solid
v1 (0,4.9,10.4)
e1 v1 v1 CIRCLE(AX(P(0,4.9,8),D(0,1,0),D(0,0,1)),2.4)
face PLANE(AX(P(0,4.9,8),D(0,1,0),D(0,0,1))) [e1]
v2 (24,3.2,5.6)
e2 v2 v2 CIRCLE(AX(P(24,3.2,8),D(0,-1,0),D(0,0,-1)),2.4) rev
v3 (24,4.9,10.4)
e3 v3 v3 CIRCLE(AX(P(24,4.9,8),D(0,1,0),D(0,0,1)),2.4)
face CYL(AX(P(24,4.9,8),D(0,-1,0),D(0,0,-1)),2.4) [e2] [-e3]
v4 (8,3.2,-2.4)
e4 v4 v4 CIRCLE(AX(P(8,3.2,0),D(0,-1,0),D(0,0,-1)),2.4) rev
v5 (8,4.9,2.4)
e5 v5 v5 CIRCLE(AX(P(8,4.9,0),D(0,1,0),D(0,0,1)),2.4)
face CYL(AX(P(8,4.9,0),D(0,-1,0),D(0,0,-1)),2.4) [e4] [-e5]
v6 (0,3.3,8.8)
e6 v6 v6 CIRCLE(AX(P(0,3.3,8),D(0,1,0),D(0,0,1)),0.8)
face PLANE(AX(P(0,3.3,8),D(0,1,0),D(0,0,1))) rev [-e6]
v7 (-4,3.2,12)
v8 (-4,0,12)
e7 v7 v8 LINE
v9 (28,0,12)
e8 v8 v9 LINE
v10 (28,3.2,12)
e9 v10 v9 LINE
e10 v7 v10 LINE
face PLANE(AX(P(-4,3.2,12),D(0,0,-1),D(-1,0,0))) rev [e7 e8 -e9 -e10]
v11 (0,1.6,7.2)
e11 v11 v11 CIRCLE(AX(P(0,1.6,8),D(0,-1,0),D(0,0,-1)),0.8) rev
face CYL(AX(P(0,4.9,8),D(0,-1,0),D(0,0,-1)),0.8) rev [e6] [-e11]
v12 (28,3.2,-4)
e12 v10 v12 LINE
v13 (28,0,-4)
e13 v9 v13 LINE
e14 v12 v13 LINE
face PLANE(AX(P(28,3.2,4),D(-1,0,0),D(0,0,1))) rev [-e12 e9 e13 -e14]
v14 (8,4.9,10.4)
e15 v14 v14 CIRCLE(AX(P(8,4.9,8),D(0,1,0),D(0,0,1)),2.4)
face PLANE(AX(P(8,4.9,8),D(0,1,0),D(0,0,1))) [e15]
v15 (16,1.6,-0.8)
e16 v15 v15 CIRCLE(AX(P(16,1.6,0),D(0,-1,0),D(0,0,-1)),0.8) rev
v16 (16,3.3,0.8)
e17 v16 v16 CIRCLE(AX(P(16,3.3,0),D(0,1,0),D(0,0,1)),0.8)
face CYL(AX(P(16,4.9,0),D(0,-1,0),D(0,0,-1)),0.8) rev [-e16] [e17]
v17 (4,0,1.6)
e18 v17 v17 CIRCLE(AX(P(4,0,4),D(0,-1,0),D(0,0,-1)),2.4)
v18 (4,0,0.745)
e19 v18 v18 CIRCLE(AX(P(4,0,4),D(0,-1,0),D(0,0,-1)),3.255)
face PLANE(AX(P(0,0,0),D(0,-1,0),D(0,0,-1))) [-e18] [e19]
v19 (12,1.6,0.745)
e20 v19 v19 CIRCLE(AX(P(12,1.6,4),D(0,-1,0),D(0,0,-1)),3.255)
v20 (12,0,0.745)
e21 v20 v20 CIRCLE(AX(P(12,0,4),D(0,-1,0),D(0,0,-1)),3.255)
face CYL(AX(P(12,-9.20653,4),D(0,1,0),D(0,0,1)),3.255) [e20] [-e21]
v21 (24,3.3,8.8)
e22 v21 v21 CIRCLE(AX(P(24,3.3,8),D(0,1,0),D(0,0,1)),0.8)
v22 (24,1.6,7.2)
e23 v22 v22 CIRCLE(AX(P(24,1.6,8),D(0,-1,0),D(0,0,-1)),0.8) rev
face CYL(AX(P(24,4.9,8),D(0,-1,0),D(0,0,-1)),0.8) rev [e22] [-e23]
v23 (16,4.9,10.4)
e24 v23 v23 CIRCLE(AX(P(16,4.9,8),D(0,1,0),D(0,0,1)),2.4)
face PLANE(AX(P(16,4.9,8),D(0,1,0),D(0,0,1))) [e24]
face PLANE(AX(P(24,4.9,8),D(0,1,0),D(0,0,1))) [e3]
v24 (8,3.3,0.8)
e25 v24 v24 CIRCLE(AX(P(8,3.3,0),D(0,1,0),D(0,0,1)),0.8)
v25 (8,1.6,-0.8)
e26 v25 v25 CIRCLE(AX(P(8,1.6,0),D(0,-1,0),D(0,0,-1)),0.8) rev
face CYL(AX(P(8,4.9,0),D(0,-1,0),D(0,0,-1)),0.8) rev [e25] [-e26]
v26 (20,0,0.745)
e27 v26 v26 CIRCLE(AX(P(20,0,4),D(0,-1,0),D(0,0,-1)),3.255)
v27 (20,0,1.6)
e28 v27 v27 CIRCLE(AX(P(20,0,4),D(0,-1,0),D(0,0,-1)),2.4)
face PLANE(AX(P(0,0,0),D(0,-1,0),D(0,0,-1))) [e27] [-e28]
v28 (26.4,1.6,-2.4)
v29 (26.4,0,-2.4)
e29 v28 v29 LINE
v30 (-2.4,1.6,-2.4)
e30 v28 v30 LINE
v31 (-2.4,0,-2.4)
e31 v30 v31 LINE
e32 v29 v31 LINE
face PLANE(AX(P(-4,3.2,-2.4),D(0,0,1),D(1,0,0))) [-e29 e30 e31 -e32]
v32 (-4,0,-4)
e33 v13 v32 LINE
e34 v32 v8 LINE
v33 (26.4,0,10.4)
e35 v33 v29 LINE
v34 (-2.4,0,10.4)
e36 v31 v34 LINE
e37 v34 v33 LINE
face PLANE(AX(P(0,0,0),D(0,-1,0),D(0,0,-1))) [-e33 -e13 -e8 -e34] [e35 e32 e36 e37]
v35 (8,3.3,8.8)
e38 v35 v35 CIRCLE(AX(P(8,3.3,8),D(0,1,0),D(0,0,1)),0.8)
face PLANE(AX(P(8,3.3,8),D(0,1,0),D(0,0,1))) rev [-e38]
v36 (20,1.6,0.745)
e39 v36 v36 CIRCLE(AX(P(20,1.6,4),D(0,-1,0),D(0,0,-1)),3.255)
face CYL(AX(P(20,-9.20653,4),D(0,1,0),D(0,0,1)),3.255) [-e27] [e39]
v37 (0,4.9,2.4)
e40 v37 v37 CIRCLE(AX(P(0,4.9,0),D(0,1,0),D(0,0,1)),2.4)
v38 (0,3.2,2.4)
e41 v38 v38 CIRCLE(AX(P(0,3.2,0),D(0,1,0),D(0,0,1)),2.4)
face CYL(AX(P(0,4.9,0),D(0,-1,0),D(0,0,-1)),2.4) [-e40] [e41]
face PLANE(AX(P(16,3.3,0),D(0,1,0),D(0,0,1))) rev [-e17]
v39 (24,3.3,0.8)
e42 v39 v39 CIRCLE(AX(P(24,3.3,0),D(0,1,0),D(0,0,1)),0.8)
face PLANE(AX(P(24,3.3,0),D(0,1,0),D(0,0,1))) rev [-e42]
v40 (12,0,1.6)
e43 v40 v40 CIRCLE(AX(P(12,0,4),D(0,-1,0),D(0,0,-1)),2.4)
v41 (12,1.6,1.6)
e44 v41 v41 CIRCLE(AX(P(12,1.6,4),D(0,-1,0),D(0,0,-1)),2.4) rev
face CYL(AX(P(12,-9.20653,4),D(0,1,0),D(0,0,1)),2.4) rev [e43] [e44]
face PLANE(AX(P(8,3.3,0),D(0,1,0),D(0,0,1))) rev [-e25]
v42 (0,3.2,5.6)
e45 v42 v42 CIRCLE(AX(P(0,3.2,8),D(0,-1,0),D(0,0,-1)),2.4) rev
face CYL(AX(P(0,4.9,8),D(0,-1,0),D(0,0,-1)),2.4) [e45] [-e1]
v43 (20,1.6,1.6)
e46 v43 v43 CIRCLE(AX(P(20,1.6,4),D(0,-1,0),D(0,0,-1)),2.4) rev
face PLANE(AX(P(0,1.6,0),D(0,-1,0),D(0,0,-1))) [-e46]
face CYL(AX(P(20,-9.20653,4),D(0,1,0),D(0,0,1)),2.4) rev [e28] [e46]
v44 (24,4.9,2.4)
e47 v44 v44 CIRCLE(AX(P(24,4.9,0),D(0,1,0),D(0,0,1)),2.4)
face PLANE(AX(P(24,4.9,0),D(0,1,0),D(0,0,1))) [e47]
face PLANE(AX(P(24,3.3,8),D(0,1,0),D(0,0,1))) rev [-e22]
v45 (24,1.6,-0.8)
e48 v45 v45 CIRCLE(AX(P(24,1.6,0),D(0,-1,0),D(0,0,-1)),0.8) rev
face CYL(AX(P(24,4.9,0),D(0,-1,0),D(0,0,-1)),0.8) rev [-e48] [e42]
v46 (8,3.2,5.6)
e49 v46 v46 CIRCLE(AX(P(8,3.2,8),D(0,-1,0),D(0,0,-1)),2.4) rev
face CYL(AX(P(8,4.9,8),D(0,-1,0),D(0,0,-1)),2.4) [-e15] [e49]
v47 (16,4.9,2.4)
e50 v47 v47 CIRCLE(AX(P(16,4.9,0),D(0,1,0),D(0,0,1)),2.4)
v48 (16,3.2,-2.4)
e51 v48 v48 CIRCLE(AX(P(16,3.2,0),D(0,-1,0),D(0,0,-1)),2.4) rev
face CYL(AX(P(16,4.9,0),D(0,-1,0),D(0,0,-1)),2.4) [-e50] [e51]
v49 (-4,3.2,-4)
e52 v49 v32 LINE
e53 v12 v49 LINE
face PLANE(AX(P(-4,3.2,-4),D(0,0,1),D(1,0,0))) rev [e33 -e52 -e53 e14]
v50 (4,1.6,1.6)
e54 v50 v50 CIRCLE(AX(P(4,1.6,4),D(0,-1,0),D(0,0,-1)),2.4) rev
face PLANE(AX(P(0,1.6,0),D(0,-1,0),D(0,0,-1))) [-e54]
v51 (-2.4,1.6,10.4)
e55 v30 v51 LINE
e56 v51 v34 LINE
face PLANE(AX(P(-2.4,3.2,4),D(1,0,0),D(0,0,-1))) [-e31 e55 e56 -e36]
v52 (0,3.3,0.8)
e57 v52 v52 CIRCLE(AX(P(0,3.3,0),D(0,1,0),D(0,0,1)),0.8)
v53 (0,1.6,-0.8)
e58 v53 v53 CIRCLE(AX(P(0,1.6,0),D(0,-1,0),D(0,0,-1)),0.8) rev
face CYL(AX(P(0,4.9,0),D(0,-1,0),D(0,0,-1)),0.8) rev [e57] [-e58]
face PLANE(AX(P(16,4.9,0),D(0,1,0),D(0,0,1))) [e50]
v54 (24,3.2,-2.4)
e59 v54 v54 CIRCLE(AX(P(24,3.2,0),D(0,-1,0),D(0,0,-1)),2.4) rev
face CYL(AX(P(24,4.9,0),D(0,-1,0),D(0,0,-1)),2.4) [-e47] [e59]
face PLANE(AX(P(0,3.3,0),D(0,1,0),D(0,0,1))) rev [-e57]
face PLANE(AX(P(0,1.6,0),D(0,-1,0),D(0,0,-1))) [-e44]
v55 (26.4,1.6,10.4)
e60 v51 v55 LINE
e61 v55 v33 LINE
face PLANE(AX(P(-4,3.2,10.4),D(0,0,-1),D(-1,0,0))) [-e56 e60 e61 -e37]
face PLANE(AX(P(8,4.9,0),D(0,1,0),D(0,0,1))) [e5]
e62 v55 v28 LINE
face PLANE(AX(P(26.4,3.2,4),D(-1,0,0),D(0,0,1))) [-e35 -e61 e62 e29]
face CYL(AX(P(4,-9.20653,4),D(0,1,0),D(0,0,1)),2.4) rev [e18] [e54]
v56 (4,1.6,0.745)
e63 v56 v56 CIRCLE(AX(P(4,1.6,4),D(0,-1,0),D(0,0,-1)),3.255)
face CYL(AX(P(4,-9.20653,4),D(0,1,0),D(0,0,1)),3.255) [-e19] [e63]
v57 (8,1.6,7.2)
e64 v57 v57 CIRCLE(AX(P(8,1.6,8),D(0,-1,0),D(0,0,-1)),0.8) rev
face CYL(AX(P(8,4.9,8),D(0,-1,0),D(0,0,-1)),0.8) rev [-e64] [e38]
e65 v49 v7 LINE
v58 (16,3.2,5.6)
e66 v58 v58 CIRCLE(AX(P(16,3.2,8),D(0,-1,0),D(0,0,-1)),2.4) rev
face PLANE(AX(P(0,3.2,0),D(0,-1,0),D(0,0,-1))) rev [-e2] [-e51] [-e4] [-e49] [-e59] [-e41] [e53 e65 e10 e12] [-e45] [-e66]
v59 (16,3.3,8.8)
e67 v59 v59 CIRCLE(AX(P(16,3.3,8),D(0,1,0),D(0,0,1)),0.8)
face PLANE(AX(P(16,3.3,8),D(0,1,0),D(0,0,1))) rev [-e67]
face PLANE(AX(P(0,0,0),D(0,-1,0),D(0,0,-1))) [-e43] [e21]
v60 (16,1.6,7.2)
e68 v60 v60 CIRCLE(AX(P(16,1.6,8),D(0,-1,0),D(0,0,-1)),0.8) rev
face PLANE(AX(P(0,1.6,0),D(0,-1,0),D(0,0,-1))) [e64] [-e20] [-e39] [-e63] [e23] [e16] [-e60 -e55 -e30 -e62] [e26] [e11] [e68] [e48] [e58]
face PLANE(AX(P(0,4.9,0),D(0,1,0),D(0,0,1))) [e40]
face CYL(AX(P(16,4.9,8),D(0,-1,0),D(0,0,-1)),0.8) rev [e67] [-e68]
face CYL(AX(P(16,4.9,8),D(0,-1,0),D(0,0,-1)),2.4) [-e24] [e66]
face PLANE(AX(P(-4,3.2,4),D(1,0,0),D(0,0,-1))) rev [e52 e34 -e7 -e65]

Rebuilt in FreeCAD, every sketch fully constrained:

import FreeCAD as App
import Part
import Sketcher

V = App.Vector
Q = App.Units.Quantity


def faces_at(feature, points):
    """Names of the faces that lie closest to the given points."""
    faces = feature.Shape.Faces
    near = lambda p: min(range(len(faces)), key=lambda i: faces[i].distToShape(Part.Vertex(*p))[0])
    return sorted({f"Face{near(p) + 1}" for p in points})


def add_polygon(sketch, points):
    """Adds a closed chain of lines whose ends are joined by coincident constraints."""
    first, n = sketch.GeometryCount, len(points)
    for a, b in zip(points, points[1:] + points[:1]):
        sketch.addGeometry(Part.LineSegment(App.Vector(*a, 0), App.Vector(*b, 0)), False)
    for i in range(n):
        sketch.addConstraint(Sketcher.Constraint("Coincident", first + i, 2, first + (i + 1) % n, 1))

doc = App.newDocument("Part")
params = doc.addObject("Spreadsheet::Sheet", "Params")
for row, (alias, value) in enumerate([
    ("sketch1_width", "8 mm"),
    ("pad1_length", "3.2 mm"),
    ("sketch2_diameter", "4.8 mm"),
    ("pad2_length", "1.7 mm"),
    ("linearpattern_pitch", "8 mm"),
    ("linearpattern2_pitch", "8 mm"),
    ("sketch3_width", "8 mm"),
    ("pad3_length", "3.2 mm"),
    ("sketch4_width", "8 mm"),
    ("pad4_length", "3.2 mm"),
    ("sketch5_width", "8 mm"),
    ("pad5_length", "3.2 mm"),
    ("sketch6_diameter", "4.8 mm"),
    ("pad6_length", "1.7 mm"),
    ("sketch7_diameter", "4.8 mm"),
    ("pad7_length", "1.7 mm"),
    ("sketch8_diameter", "4.8 mm"),
    ("pad8_length", "1.7 mm"),
    ("thickness_wall", "1.6 mm"),
    ("sketch9_diameter", "4.8 mm"),
    ("sketch9_diameter2", "6.51 mm"),
    ("pad9_length", "1.6 mm"),
    ("linearpattern3_pitch", "8 mm"),
], start=1):
    params.set(f"A{row}", alias)
    params.set(f"B{row}", "=" + value)
    params.setAlias(f"B{row}", alias)

body = doc.addObject("PartDesign::Body", "Body")

sketch1 = doc.addObject("Sketcher::SketchObject", "Sketch")
body.addObject(sketch1)
sketch1.AttachmentSupport = (doc.XZ_Plane, [""])
sketch1.MapMode = "FlatFace"
add_polygon(sketch1, [(-4, -4), (-4, 4), (4, 4), (4, -4)])
sketch1.addConstraint([
    Sketcher.Constraint("Vertical", 0),
    Sketcher.Constraint("Horizontal", 1),
    Sketcher.Constraint("Vertical", 2),
    Sketcher.Constraint("Horizontal", 3),
    Sketcher.Constraint("Symmetric", 0, 2, 2, 2, -1, 1),
    Sketcher.Constraint("Equal", 3, 0),
    Sketcher.Constraint("DistanceX", 1, 1, 1, 2, Q("8 mm")),
])
sketch1.setExpression("Constraints[10]", "Params.sketch1_width")
pad1 = doc.addObject("PartDesign::Pad", "Pad")
body.addObject(pad1)
pad1.Profile = sketch1
pad1.setExpression("Length", "Params.pad1_length")
pad1.Reversed = True

sketch2 = doc.addObject("Sketcher::SketchObject", "Sketch001")
body.addObject(sketch2)
sketch2.AttachmentSupport = (doc.XZ_Plane, [""])
sketch2.MapMode = "FlatFace"
sketch2.AttachmentOffset = App.Placement(V(0, 0, -3.2), App.Rotation())
sketch2.addGeometry(Part.Circle(V(0, 0, 0), V(0, 0, 1), 2.4), False)
sketch2.addConstraint([
    Sketcher.Constraint("Coincident", 0, 3, -1, 1),
    Sketcher.Constraint("Diameter", 0, Q("4.8 mm")),
])
sketch2.setExpression("Constraints[1]", "Params.sketch2_diameter")
pad2 = doc.addObject("PartDesign::Pad", "Pad001")
body.addObject(pad2)
pad2.Profile = sketch2
pad2.setExpression("Length", "Params.pad2_length")
pad2.Reversed = True
doc.recompute()

linearpattern = doc.addObject("PartDesign::LinearPattern", "LinearPattern")
body.addObject(linearpattern)
linearpattern.Originals = [pad1, pad2]
linearpattern.Direction = (doc.Z_Axis, [""])
linearpattern.Mode = "offset"
linearpattern.setExpression("Offset", "Params.linearpattern_pitch")
linearpattern.Occurrences = 2
body.Tip = linearpattern
doc.recompute()

linearpattern2 = doc.addObject("PartDesign::LinearPattern", "LinearPattern001")
body.addObject(linearpattern2)
linearpattern2.Originals = [pad1, pad2]
linearpattern2.Direction = (doc.X_Axis, [""])
linearpattern2.Mode = "offset"
linearpattern2.setExpression("Offset", "Params.linearpattern2_pitch")
linearpattern2.Occurrences = 4
body.Tip = linearpattern2

sketch3 = doc.addObject("Sketcher::SketchObject", "Sketch002")
body.addObject(sketch3)
sketch3.AttachmentSupport = (doc.XZ_Plane, [""])
sketch3.MapMode = "FlatFace"
add_polygon(sketch3, [(4, 4), (4, 12), (12, 12), (12, 4)])
sketch3.addConstraint([
    Sketcher.Constraint("Vertical", 0),
    Sketcher.Constraint("Horizontal", 1),
    Sketcher.Constraint("Vertical", 2),
    Sketcher.Constraint("Horizontal", 3),
    Sketcher.Constraint("Equal", 3, 0),
    Sketcher.Constraint("DistanceX", 1, 1, 1, 2, Q("8 mm")),
    Sketcher.Constraint("DistanceX", -1, 1, 0, 2, Q("4 mm")),
    Sketcher.Constraint("DistanceY", -1, 1, 0, 2, Q("12 mm")),
])
sketch3.setExpression("Constraints[9]", "Params.sketch3_width")
pad3 = doc.addObject("PartDesign::Pad", "Pad002")
body.addObject(pad3)
pad3.Profile = sketch3
pad3.setExpression("Length", "Params.pad3_length")
pad3.Reversed = True

sketch4 = doc.addObject("Sketcher::SketchObject", "Sketch003")
body.addObject(sketch4)
sketch4.AttachmentSupport = (doc.XZ_Plane, [""])
sketch4.MapMode = "FlatFace"
add_polygon(sketch4, [(12, 4), (12, 12), (20, 12), (20, 4)])
sketch4.addConstraint([
    Sketcher.Constraint("Vertical", 0),
    Sketcher.Constraint("Horizontal", 1),
    Sketcher.Constraint("Vertical", 2),
    Sketcher.Constraint("Horizontal", 3),
    Sketcher.Constraint("Equal", 3, 0),
    Sketcher.Constraint("DistanceX", 1, 1, 1, 2, Q("8 mm")),
    Sketcher.Constraint("DistanceX", -1, 1, 0, 2, Q("12 mm")),
    Sketcher.Constraint("DistanceY", -1, 1, 0, 2, Q("12 mm")),
])
sketch4.setExpression("Constraints[9]", "Params.sketch4_width")
pad4 = doc.addObject("PartDesign::Pad", "Pad003")
body.addObject(pad4)
pad4.Profile = sketch4
pad4.setExpression("Length", "Params.pad4_length")
pad4.Reversed = True

sketch5 = doc.addObject("Sketcher::SketchObject", "Sketch004")
body.addObject(sketch5)
sketch5.AttachmentSupport = (doc.XZ_Plane, [""])
sketch5.MapMode = "FlatFace"
add_polygon(sketch5, [(20, 4), (20, 12), (28, 12), (28, 4)])
sketch5.addConstraint([
    Sketcher.Constraint("Vertical", 0),
    Sketcher.Constraint("Horizontal", 1),
    Sketcher.Constraint("Vertical", 2),
    Sketcher.Constraint("Horizontal", 3),
    Sketcher.Constraint("Equal", 3, 0),
    Sketcher.Constraint("DistanceX", 1, 1, 1, 2, Q("8 mm")),
    Sketcher.Constraint("DistanceX", -1, 1, 0, 2, Q("20 mm")),
    Sketcher.Constraint("DistanceY", -1, 1, 0, 2, Q("12 mm")),
])
sketch5.setExpression("Constraints[9]", "Params.sketch5_width")
pad5 = doc.addObject("PartDesign::Pad", "Pad004")
body.addObject(pad5)
pad5.Profile = sketch5
pad5.setExpression("Length", "Params.pad5_length")
pad5.Reversed = True

sketch6 = doc.addObject("Sketcher::SketchObject", "Sketch005")
body.addObject(sketch6)
sketch6.AttachmentSupport = (doc.XZ_Plane, [""])
sketch6.MapMode = "FlatFace"
sketch6.AttachmentOffset = App.Placement(V(0, 0, -3.2), App.Rotation())
sketch6.addGeometry(Part.Circle(V(8, 8, 0), V(0, 0, 1), 2.4), False)
sketch6.addConstraint([
    Sketcher.Constraint("Diameter", 0, Q("4.8 mm")),
    Sketcher.Constraint("DistanceX", -1, 1, 0, 3, Q("8 mm")),
    Sketcher.Constraint("DistanceY", -1, 1, 0, 3, Q("8 mm")),
])
sketch6.setExpression("Constraints[0]", "Params.sketch6_diameter")
pad6 = doc.addObject("PartDesign::Pad", "Pad005")
body.addObject(pad6)
pad6.Profile = sketch6
pad6.setExpression("Length", "Params.pad6_length")
pad6.Reversed = True

sketch7 = doc.addObject("Sketcher::SketchObject", "Sketch006")
body.addObject(sketch7)
sketch7.AttachmentSupport = (doc.XZ_Plane, [""])
sketch7.MapMode = "FlatFace"
sketch7.AttachmentOffset = App.Placement(V(0, 0, -3.2), App.Rotation())
sketch7.addGeometry(Part.Circle(V(16, 8, 0), V(0, 0, 1), 2.4), False)
sketch7.addConstraint([
    Sketcher.Constraint("Diameter", 0, Q("4.8 mm")),
    Sketcher.Constraint("DistanceX", -1, 1, 0, 3, Q("16 mm")),
    Sketcher.Constraint("DistanceY", -1, 1, 0, 3, Q("8 mm")),
])
sketch7.setExpression("Constraints[0]", "Params.sketch7_diameter")
pad7 = doc.addObject("PartDesign::Pad", "Pad006")
body.addObject(pad7)
pad7.Profile = sketch7
pad7.setExpression("Length", "Params.pad7_length")
pad7.Reversed = True

sketch8 = doc.addObject("Sketcher::SketchObject", "Sketch007")
body.addObject(sketch8)
sketch8.AttachmentSupport = (doc.XZ_Plane, [""])
sketch8.MapMode = "FlatFace"
sketch8.AttachmentOffset = App.Placement(V(0, 0, -3.2), App.Rotation())
sketch8.addGeometry(Part.Circle(V(24, 8, 0), V(0, 0, 1), 2.4), False)
sketch8.addConstraint([
    Sketcher.Constraint("Diameter", 0, Q("4.8 mm")),
    Sketcher.Constraint("DistanceX", -1, 1, 0, 3, Q("24 mm")),
    Sketcher.Constraint("DistanceY", -1, 1, 0, 3, Q("8 mm")),
])
sketch8.setExpression("Constraints[0]", "Params.sketch8_diameter")
pad8 = doc.addObject("PartDesign::Pad", "Pad007")
body.addObject(pad8)
pad8.Profile = sketch8
pad8.setExpression("Length", "Params.pad8_length")
pad8.Reversed = True
doc.recompute()

thickness = doc.addObject("PartDesign::Thickness", "Thickness")
body.addObject(thickness)
thickness.Base = (pad8, faces_at(pad8, [(12, 0, 4)]))
thickness.setExpression("Value", "Params.thickness_wall")
thickness.Reversed = True
thickness.Join = "Intersection"

sketch9 = doc.addObject("Sketcher::SketchObject", "Sketch008")
body.addObject(sketch9)
sketch9.AttachmentSupport = (doc.XZ_Plane, [""])
sketch9.MapMode = "FlatFace"
sketch9.AttachmentOffset = App.Placement(V(0, 0, -1.6), App.Rotation())
sketch9.addGeometry([
    Part.Circle(V(4, 4, 0), V(0, 0, 1), 3.255),
    Part.Circle(V(4, 4, 0), V(0, 0, 1), 2.4),
], False)
sketch9.addConstraint([
    Sketcher.Constraint("Coincident", 1, 3, 0, 3),
    Sketcher.Constraint("Diameter", 1, Q("4.8 mm")),
    Sketcher.Constraint("Diameter", 0, Q("6.51 mm")),
    Sketcher.Constraint("DistanceX", -1, 1, 0, 3, Q("4 mm")),
    Sketcher.Constraint("DistanceY", -1, 1, 0, 3, Q("4 mm")),
])
sketch9.setExpression("Constraints[1]", "Params.sketch9_diameter")
sketch9.setExpression("Constraints[2]", "Params.sketch9_diameter2")
pad9 = doc.addObject("PartDesign::Pad", "Pad008")
body.addObject(pad9)
pad9.Profile = sketch9
pad9.setExpression("Length", "Params.pad9_length")
doc.recompute()

linearpattern3 = doc.addObject("PartDesign::LinearPattern", "LinearPattern002")
body.addObject(linearpattern3)
linearpattern3.Originals = [pad9]
linearpattern3.Direction = (doc.X_Axis, [""])
linearpattern3.Mode = "offset"
linearpattern3.setExpression("Offset", "Params.linearpattern3_pitch")
linearpattern3.Occurrences = 3
body.Tip = linearpattern3

doc.recompute()
